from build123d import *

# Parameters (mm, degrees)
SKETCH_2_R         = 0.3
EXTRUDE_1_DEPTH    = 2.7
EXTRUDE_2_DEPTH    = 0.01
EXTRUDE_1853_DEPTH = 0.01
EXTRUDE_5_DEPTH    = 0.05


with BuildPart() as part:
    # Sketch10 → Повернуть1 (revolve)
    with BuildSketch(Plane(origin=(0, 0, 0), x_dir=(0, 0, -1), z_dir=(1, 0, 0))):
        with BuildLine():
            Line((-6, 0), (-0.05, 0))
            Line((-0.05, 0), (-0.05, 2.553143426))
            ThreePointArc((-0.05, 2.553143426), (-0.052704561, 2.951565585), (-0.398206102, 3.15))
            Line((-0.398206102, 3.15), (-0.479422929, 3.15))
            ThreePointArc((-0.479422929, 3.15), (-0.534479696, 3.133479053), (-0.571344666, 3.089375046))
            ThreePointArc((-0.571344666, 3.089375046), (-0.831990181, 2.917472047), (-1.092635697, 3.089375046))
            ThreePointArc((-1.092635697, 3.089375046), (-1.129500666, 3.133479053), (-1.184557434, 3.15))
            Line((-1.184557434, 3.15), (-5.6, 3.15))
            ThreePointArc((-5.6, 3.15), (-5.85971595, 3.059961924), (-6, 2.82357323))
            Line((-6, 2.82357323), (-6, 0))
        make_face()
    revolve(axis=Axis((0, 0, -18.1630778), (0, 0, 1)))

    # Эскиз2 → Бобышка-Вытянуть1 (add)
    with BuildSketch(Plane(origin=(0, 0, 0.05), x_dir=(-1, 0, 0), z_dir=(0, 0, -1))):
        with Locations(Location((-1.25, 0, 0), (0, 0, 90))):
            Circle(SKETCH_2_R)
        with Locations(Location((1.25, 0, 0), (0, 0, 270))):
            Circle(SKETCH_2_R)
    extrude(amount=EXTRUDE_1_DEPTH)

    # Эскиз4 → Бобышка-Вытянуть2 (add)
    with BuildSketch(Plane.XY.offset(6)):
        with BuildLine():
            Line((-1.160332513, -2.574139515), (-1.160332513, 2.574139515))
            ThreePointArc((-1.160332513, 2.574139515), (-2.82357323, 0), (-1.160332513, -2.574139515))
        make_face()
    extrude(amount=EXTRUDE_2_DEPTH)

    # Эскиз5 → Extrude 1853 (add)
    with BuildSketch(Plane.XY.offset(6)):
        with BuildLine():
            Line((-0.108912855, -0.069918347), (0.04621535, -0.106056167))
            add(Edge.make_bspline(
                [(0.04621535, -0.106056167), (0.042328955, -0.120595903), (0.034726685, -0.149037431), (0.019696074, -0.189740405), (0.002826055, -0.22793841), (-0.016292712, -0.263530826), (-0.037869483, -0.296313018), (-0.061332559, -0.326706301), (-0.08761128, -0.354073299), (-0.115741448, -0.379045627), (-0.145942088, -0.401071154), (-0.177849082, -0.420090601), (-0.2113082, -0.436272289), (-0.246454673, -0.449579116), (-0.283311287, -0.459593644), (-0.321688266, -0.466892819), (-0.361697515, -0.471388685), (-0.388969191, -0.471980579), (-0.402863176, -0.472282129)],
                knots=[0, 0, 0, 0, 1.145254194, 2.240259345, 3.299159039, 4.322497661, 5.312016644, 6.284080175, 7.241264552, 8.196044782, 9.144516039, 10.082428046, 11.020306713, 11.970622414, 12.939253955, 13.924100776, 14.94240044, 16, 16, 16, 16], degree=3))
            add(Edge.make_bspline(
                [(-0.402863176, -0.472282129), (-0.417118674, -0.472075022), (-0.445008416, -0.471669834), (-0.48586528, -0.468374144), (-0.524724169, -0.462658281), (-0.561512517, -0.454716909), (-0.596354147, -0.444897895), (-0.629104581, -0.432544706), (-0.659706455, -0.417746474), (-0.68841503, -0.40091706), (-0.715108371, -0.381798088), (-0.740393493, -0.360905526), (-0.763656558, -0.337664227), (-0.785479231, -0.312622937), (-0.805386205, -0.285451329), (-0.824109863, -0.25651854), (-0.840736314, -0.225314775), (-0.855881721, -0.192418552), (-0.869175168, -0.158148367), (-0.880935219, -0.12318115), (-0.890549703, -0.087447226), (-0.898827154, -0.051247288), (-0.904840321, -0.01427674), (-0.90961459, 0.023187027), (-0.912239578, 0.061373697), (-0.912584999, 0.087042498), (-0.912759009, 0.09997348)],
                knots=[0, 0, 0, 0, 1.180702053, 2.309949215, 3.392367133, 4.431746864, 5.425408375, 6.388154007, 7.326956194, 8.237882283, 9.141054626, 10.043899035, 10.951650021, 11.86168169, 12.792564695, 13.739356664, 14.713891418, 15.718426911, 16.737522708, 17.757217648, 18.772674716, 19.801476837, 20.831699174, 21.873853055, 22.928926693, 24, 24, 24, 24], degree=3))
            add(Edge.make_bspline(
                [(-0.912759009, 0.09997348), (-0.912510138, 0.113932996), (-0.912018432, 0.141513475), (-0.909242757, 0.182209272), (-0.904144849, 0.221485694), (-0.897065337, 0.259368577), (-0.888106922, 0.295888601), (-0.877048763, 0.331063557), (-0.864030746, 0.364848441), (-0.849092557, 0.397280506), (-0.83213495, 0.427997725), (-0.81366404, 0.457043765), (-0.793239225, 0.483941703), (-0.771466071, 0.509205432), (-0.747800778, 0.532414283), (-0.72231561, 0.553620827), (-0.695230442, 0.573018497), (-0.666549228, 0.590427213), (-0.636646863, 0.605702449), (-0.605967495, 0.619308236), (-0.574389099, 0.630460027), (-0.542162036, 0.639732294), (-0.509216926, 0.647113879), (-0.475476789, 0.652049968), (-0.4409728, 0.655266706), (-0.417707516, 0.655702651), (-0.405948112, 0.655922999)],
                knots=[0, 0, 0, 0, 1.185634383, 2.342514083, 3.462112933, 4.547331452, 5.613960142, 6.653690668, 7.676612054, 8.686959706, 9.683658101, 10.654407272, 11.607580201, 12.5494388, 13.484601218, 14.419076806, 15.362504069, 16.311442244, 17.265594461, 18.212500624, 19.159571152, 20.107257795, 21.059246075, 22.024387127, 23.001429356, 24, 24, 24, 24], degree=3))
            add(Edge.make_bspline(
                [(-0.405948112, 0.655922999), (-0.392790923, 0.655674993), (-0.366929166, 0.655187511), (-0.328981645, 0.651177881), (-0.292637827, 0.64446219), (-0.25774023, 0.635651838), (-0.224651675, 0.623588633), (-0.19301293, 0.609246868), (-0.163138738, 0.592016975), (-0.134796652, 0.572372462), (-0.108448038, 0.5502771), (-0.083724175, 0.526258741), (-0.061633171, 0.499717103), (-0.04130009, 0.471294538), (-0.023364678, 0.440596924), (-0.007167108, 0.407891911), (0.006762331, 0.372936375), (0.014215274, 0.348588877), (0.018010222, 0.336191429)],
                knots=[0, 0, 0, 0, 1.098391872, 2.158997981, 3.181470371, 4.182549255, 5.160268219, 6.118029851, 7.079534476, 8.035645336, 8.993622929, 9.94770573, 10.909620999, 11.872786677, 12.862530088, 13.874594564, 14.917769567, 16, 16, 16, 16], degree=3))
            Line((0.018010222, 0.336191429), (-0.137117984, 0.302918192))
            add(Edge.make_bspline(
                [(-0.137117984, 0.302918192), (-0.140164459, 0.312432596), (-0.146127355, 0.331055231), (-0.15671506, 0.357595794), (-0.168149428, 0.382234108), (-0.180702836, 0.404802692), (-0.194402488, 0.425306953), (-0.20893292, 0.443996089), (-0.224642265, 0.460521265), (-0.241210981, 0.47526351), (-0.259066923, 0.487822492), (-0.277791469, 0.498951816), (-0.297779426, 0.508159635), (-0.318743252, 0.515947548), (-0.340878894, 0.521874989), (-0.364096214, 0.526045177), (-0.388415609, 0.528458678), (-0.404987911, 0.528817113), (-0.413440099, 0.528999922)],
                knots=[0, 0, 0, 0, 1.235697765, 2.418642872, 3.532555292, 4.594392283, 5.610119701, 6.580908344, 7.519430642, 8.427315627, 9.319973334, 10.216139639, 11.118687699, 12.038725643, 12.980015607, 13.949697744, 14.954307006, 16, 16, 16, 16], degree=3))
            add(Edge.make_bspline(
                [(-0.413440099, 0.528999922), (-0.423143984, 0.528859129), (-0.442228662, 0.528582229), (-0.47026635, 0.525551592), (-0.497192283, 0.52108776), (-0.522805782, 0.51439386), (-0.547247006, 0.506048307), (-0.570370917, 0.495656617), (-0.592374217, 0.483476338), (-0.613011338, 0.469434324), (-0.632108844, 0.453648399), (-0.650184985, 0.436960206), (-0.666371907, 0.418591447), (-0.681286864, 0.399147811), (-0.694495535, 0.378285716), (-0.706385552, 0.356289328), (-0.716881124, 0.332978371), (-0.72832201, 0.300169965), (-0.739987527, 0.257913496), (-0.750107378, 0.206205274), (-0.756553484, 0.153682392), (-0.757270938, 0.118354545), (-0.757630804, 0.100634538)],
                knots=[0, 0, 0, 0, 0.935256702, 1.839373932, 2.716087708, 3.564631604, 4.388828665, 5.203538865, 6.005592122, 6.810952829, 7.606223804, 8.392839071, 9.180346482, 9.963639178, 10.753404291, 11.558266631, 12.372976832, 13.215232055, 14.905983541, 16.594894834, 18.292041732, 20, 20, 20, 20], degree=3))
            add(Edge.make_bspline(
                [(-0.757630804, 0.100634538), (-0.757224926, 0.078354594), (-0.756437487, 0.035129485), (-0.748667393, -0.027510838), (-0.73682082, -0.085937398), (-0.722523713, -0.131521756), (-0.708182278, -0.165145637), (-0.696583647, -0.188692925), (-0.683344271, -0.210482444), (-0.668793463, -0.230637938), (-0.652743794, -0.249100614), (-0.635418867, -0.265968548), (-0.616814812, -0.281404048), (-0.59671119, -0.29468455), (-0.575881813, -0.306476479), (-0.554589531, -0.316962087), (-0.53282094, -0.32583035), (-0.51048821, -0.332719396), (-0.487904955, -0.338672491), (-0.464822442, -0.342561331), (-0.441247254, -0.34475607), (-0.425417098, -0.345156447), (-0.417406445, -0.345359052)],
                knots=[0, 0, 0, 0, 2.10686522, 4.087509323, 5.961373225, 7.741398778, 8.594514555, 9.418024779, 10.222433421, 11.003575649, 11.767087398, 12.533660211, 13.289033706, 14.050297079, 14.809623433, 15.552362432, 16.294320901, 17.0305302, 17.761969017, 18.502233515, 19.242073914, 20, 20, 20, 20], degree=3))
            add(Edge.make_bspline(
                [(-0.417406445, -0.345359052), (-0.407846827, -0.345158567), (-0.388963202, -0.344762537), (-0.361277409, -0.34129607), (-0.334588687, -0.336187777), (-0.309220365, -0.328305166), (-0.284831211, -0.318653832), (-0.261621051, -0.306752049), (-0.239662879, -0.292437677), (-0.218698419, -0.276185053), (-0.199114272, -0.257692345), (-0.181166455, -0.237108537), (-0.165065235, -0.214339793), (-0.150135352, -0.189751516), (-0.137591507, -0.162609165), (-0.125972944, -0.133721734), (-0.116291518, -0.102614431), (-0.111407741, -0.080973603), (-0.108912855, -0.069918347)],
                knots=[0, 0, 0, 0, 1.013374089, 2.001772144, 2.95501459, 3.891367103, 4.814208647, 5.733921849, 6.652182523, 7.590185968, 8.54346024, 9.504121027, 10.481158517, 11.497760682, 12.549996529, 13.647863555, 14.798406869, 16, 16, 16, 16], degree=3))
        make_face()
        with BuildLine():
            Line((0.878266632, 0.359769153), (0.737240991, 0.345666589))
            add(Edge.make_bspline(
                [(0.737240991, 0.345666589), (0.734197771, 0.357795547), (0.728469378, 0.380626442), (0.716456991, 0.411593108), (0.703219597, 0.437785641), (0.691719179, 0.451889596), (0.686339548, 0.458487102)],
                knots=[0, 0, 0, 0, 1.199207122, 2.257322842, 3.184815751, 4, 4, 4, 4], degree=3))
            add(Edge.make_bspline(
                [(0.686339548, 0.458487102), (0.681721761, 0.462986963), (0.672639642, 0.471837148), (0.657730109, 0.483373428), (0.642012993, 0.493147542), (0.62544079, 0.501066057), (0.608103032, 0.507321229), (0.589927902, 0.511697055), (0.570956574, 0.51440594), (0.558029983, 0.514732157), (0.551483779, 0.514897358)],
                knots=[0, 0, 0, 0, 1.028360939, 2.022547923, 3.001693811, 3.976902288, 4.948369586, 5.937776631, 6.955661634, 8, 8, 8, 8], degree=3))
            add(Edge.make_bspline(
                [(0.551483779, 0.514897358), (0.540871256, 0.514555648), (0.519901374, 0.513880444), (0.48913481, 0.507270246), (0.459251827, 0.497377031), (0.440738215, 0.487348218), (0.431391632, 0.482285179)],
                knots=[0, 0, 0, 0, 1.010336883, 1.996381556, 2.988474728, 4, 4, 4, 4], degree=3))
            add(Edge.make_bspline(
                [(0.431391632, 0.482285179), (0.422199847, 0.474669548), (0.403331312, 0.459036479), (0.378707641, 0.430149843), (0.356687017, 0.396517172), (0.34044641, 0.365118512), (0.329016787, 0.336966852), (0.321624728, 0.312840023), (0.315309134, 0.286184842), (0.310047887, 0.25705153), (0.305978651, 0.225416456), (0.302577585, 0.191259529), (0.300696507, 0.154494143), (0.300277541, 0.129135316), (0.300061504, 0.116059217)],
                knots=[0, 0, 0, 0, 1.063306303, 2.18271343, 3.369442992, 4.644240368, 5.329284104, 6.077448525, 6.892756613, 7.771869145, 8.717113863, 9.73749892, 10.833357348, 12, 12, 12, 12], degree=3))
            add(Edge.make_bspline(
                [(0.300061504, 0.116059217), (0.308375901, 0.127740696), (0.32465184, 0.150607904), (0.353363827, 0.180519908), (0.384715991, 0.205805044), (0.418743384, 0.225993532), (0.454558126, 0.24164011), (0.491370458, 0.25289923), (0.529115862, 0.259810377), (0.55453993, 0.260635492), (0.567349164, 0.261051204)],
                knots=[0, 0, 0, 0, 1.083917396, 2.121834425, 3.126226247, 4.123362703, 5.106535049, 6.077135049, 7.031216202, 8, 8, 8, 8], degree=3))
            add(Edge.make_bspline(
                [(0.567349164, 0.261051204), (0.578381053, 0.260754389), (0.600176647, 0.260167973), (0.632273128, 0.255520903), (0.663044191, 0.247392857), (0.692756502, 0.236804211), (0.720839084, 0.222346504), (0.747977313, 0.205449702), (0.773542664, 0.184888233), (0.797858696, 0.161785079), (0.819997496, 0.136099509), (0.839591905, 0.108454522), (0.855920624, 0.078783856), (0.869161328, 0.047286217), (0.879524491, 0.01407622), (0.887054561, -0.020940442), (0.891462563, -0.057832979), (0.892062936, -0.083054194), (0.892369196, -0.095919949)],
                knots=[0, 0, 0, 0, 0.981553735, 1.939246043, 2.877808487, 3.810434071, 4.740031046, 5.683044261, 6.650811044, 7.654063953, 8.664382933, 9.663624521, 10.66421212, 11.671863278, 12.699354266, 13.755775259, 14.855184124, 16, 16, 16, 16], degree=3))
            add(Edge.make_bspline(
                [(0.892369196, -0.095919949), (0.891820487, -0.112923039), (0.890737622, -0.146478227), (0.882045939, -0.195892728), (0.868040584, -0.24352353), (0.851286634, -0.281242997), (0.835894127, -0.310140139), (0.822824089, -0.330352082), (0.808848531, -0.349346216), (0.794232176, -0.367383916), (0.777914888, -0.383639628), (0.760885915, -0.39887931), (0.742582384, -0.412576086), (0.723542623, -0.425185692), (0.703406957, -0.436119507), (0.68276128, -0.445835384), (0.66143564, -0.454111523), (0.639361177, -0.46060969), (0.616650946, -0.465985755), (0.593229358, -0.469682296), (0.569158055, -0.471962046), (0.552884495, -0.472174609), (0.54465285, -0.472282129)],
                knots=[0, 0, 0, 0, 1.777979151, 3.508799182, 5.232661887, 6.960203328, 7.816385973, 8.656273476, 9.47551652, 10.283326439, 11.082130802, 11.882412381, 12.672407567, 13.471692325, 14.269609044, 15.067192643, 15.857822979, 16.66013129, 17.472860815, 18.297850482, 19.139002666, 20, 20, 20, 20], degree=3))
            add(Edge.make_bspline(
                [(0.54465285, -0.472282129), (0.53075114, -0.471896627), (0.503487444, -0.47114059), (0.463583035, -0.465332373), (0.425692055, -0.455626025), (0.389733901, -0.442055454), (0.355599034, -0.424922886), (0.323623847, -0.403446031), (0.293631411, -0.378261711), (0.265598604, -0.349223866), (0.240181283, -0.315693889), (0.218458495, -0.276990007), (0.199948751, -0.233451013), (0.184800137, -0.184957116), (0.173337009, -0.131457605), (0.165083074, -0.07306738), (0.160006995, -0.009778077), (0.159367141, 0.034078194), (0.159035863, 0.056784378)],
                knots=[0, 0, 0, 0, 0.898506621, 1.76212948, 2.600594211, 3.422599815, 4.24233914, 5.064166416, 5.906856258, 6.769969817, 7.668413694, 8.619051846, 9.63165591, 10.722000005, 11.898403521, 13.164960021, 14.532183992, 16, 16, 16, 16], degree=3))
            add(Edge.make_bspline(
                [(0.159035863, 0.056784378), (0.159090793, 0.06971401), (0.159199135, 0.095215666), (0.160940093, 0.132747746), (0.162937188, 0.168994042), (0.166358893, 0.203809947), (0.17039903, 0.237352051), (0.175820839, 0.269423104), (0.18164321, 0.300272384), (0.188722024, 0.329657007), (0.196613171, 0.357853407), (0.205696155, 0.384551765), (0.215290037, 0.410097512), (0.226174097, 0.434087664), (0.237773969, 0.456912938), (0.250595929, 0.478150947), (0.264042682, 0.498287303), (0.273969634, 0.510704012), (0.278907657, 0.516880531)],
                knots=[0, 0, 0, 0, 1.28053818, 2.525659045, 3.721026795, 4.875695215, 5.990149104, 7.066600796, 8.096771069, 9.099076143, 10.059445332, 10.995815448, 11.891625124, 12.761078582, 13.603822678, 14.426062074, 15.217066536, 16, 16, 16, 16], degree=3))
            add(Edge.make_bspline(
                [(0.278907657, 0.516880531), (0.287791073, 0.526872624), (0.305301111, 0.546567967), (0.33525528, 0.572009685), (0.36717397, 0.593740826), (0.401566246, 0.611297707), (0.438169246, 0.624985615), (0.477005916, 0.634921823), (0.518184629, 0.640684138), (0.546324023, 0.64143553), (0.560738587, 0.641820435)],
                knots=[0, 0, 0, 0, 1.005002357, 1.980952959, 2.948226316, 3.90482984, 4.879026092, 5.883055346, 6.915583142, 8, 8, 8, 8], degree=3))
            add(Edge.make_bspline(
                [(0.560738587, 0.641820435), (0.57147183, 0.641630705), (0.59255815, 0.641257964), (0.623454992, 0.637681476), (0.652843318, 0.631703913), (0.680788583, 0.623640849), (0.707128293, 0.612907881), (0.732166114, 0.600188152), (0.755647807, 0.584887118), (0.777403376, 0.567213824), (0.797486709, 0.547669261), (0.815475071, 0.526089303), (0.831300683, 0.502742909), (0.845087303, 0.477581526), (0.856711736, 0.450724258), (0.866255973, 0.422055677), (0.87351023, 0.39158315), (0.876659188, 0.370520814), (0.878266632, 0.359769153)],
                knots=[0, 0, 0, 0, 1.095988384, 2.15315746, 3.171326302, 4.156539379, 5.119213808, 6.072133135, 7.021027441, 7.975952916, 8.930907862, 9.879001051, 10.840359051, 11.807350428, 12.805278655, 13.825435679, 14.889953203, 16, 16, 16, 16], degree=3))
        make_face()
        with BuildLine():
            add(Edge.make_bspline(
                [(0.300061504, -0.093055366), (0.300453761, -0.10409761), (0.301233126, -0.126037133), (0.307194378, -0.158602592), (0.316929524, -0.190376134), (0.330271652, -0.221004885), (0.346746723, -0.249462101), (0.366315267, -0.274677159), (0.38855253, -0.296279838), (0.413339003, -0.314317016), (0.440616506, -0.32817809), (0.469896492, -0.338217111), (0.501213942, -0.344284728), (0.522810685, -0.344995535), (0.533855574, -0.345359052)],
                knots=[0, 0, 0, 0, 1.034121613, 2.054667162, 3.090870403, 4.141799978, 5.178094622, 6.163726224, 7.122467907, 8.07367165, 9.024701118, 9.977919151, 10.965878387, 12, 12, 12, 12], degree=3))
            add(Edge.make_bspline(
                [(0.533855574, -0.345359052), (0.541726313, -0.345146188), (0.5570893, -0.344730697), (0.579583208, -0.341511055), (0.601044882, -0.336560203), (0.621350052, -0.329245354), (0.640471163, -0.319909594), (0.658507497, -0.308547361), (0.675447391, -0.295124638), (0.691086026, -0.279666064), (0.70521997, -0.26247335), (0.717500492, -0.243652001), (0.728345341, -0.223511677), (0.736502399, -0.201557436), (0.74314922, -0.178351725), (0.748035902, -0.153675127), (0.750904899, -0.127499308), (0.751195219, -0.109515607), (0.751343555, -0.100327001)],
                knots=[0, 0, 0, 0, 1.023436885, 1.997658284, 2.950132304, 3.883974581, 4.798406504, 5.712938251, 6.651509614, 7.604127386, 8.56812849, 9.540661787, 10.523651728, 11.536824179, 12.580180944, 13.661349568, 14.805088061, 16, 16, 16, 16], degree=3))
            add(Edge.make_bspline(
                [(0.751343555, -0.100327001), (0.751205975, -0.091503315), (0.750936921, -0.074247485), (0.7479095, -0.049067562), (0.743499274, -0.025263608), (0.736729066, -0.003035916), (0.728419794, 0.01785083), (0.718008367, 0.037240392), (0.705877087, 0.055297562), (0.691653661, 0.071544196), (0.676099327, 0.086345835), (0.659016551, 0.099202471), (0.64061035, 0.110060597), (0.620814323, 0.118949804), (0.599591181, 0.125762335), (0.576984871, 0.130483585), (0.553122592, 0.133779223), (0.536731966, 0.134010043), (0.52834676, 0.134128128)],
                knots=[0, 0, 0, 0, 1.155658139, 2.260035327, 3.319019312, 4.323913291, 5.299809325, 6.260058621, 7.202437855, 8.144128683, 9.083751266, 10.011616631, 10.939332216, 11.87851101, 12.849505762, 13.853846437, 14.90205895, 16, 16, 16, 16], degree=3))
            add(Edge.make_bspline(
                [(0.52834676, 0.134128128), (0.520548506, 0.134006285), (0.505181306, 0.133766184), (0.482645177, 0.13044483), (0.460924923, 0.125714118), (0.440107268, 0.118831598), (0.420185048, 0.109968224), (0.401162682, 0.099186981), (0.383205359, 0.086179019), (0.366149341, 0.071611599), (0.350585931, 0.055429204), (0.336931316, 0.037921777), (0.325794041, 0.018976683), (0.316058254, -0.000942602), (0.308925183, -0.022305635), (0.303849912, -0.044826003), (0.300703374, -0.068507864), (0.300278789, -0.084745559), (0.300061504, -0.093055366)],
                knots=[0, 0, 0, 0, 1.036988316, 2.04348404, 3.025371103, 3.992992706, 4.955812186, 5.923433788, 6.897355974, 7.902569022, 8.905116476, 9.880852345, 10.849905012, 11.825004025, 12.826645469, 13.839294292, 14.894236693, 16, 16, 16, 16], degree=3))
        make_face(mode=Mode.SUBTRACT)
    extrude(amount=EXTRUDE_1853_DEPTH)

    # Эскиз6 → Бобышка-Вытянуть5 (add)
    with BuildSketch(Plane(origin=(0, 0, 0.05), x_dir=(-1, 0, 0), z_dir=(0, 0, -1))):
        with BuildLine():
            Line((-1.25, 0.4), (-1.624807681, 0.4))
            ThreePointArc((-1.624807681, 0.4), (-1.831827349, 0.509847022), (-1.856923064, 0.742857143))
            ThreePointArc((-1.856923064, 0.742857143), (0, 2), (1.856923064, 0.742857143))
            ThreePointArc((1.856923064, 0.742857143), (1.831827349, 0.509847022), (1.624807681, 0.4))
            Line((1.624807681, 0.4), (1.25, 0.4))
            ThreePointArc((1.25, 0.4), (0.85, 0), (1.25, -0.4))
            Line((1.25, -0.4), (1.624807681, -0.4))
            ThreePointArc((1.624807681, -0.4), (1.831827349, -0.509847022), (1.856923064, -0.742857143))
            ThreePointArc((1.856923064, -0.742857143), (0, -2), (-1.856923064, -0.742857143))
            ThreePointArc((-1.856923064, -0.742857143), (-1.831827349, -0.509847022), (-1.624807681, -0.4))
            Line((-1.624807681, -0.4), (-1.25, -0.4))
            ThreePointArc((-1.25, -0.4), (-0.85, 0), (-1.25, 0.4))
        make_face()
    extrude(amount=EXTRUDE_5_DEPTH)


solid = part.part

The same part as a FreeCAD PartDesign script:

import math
import FreeCAD as App
import Part
import Sketcher
from FreeCAD import Vector
Q = App.Units.Quantity

doc = App.newDocument("Part")
body = doc.addObject("PartDesign::Body", "Body")

sketch1 = doc.addObject("Sketcher::SketchObject", "Sketch")
body.addObject(sketch1)
sketch1.AttachmentSupport = (doc.YZ_Plane, [""])
sketch1.MapMode = "FlatFace"
sketch1.addGeometry(Part.LineSegment(Vector(0, 6, 0), Vector(0, 0.05, 0)), False)
sketch1.addGeometry(Part.LineSegment(Vector(0, 0.05, 0), Vector(2.55, 0.05, 0)), False)
sketch1.addGeometry(Part.ArcOfCircle(Part.Circle(Vector(2.75, 0.4, 0), Vector(0, 0, 1), 0.4), math.radians(-119), math.radians(0)), False)
sketch1.addGeometry(Part.LineSegment(Vector(3.15, 0.4, 0), Vector(3.15, 0.48, 0)), False)
sketch1.addGeometry(Part.ArcOfCircle(Part.Circle(Vector(3.05, 0.48, 0), Vector(0, 0, 1), 0.1), math.radians(0), math.radians(67)), False)
sketch1.addGeometry(Part.ArcOfCircle(Part.Circle(Vector(3.2, 0.83, 0), Vector(0, 0, 1), 0.28), math.radians(113), math.radians(247)), False)
sketch1.addGeometry(Part.ArcOfCircle(Part.Circle(Vector(3.05, 1.18, 0), Vector(0, 0, 1), 0.1), math.radians(-67), math.radians(0)), False)
sketch1.addGeometry(Part.LineSegment(Vector(3.15, 1.18, 0), Vector(3.15, 5.6, 0)), False)
sketch1.addGeometry(Part.ArcOfCircle(Part.Circle(Vector(2.75, 5.61, 0), Vector(0, 0, 1), 0.4), math.radians(-1), math.radians(79)), False)
sketch1.addGeometry(Part.LineSegment(Vector(2.82, 6, 0), Vector(0, 6, 0)), False)
sketch1.addConstraint(Sketcher.Constraint("Coincident", 0, 2, 1, 1))
sketch1.addConstraint(Sketcher.Constraint("Coincident", 1, 2, 2, 1))
sketch1.addConstraint(Sketcher.Constraint("Tangent", 2, 2, 3, 1))
sketch1.addConstraint(Sketcher.Constraint("Tangent", 3, 2, 4, 1))
sketch1.addConstraint(Sketcher.Constraint("Tangent", 4, 2, 5, 2))
sketch1.addConstraint(Sketcher.Constraint("Tangent", 5, 1, 6, 1))
sketch1.addConstraint(Sketcher.Constraint("Tangent", 6, 2, 7, 1))
sketch1.addConstraint(Sketcher.Constraint("Coincident", 7, 2, 8, 1))
sketch1.addConstraint(Sketcher.Constraint("Coincident", 8, 2, 9, 1))
sketch1.addConstraint(Sketcher.Constraint("Coincident", 9, 2, 0, 1))
sketch1.addConstraint(Sketcher.Constraint("Vertical", 0))
sketch1.addConstraint(Sketcher.Constraint("Horizontal", 1))
sketch1.addConstraint(Sketcher.Constraint("Vertical", 3))
sketch1.addConstraint(Sketcher.Constraint("Vertical", 7))
sketch1.addConstraint(Sketcher.Constraint("Horizontal", 9))
sketch1.addConstraint(Sketcher.Constraint("Equal", 4, 6))
sketch1.addConstraint(Sketcher.Constraint("Equal", 2, 8))
sketch1.addConstraint(Sketcher.Constraint("PointOnObject", 0, 2, -2))
sketch1.addConstraint(Sketcher.Constraint("Vertical", 4, 3, 6, 3))
sketch1.addConstraint(Sketcher.Constraint("Radius", 2, Q("0.4 mm")))
sketch1.addConstraint(Sketcher.Constraint("Radius", 4, Q("0.1 mm")))
sketch1.addConstraint(Sketcher.Constraint("DistanceY", -1, 1, 8, 2, Q("6 mm")))
sketch1.addConstraint(Sketcher.Constraint("DistanceY", 0, 2, 0, 1, Q("5.95 mm")))
sketch1.addConstraint(Sketcher.Constraint("DistanceY", -1, 1, 7, 2, Q("5.6 mm")))
sketch1.addConstraint(Sketcher.Constraint("DistanceX", -1, 1, 2, 3, Q("2.75 mm")))
sketch1.addConstraint(Sketcher.Constraint("Radius", 5, Q("0.283552 mm")))
sketch1.addConstraint(Sketcher.Constraint("DistanceX", 8, 2, 5, 1, Q("0.265802 mm")))
sketch1.addConstraint(Sketcher.Constraint("DistanceX", 1, 1, 1, 2, Q("2.553143 mm")))
sketch1.addConstraint(Sketcher.Constraint("DistanceX", 9, 2, 9, 1, Q("2.823573 mm")))
sketch1.addConstraint(Sketcher.Constraint("DistanceY", 3, 1, 3, 2, Q("0.081217 mm")))
revolution = doc.addObject("PartDesign::Revolution", "Revolution")
body.addObject(revolution)
revolution.Profile = sketch1
revolution.ReferenceAxis = (sketch1, ["V_Axis"])
revolution.Angle = 360

sketch2 = doc.addObject("Sketcher::SketchObject", "Sketch001")
body.addObject(sketch2)
sketch2.AttachmentSupport = (doc.XY_Plane, [""])
sketch2.MapMode = "FlatFace"
sketch2.AttachmentOffset = App.Placement(Vector(0, 0, 0.05), App.Rotation())
sketch2.addGeometry(Part.Circle(Vector(1.25, 0, 0), Vector(0, 0, 1), 0.3), False)
sketch2.addGeometry(Part.Circle(Vector(-1.25, 0, 0), Vector(0, 0, 1), 0.3), False)
sketch2.addConstraint(Sketcher.Constraint("Equal", 0, 1))
sketch2.addConstraint(Sketcher.Constraint("Symmetric", 0, 3, 1, 3, -1, 1))
sketch2.addConstraint(Sketcher.Constraint("PointOnObject", 0, 3, -1))
sketch2.addConstraint(Sketcher.Constraint("Diameter", 0, Q("0.6 mm")))
sketch2.addConstraint(Sketcher.Constraint("DistanceX", 1, 3, 0, 3, Q("2.5 mm")))
pad1 = doc.addObject("PartDesign::Pad", "Pad")
body.addObject(pad1)
pad1.Profile = sketch2
pad1.Length = 2.7
pad1.Reversed = True

sketch3 = doc.addObject("Sketcher::SketchObject", "Sketch002")
body.addObject(sketch3)
sketch3.AttachmentSupport = (doc.XY_Plane, [""])
sketch3.MapMode = "FlatFace"
sketch3.AttachmentOffset = App.Placement(Vector(0, 0, 6), App.Rotation())
sketch3.addGeometry(Part.LineSegment(Vector(-1.2, -2.6, 0), Vector(-1.2, 2.6, 0)), False)
sketch3.addGeometry(Part.ArcOfCircle(Part.Circle(Vector(0, 0, 0), Vector(0, 0, 1), 2.8), math.radians(114), math.radians(246)), False)
sketch3.addConstraint(Sketcher.Constraint("Coincident", 0, 1, 1, 2))
sketch3.addConstraint(Sketcher.Constraint("Coincident", 1, 1, 0, 2))
sketch3.addConstraint(Sketcher.Constraint("Vertical", 0))
sketch3.addConstraint(Sketcher.Constraint("Coincident", 1, 3, -1, 1))
sketch3.addConstraint(Sketcher.Constraint("Radius", 1, Q("2.823573 mm")))
sketch3.addConstraint(Sketcher.Constraint("DistanceY", 0, 1, 0, 2, Q("5.148279 mm")))
pad2 = doc.addObject("PartDesign::Pad", "Pad001")
body.addObject(pad2)
pad2.Profile = sketch3
pad2.Length = 0.01

sketch4 = doc.addObject("Sketcher::SketchObject", "Sketch003")
body.addObject(sketch4)
sketch4.AttachmentSupport = (doc.XY_Plane, [""])
sketch4.MapMode = "FlatFace"
sketch4.AttachmentOffset = App.Placement(Vector(0, 0, 6), App.Rotation())
sketch4.addGeometry(Part.LineSegment(Vector(0.046215, -0.106056, 0), Vector(-0.108913, -0.069918, 0)), False)
sketch4.addGeometry(Part.BSplineCurve([Vector(-0.417406, -0.345359, 0), Vector(-0.407847, -0.345159, 0), Vector(-0.388963, -0.344763, 0), Vector(-0.361277, -0.341296, 0), Vector(-0.334589, -0.336188, 0), Vector(-0.30922, -0.328305, 0), Vector(-0.284831, -0.318654, 0), Vector(-0.261621, -0.306752, 0), Vector(-0.239663, -0.292438, 0), Vector(-0.218698, -0.276185, 0), Vector(-0.199114, -0.257692, 0), Vector(-0.181166, -0.237109, 0), Vector(-0.165065, -0.21434, 0), Vector(-0.150135, -0.189752, 0), Vector(-0.137592, -0.162609, 0), Vector(-0.125973, -0.133722, 0), Vector(-0.116292, -0.102614, 0), Vector(-0.111408, -0.080974, 0), Vector(-0.108913, -0.069918, 0)], [4, 1, 1, 1, 1, 1, 1, 1, 1, 1, 1, 1, 1, 1, 1, 1, 4], [0, 1.013374089, 2.001772144, 2.95501459, 3.891367103, 4.814208647, 5.733921849, 6.652182523, 7.590185968, 8.54346024, 9.504121027, 10.481158517, 11.497760682, 12.549996529, 13.647863555, 14.798406869, 16], False, 3, [1, 1, 1, 1, 1, 1, 1, 1, 1, 1, 1, 1, 1, 1, 1, 1, 1, 1, 1], False), False)
sketch4.addGeometry(Part.BSplineCurve([Vector(-0.757631, 0.100635, 0), Vector(-0.757225, 0.078355, 0), Vector(-0.756437, 0.035129, 0), Vector(-0.748667, -0.027511, 0), Vector(-0.736821, -0.085937, 0), Vector(-0.722524, -0.131522, 0), Vector(-0.708182, -0.165146, 0), Vector(-0.696584, -0.188693, 0), Vector(-0.683344, -0.210482, 0), Vector(-0.668793, -0.230638, 0), Vector(-0.652744, -0.249101, 0), Vector(-0.635419, -0.265969, 0), Vector(-0.616815, -0.281404, 0), Vector(-0.596711, -0.294685, 0), Vector(-0.575882, -0.306476, 0), Vector(-0.55459, -0.316962, 0), Vector(-0.532821, -0.32583, 0), Vector(-0.510488, -0.332719, 0), Vector(-0.487905, -0.338672, 0), Vector(-0.464822, -0.342561, 0), Vector(-0.441247, -0.344756, 0), Vector(-0.425417, -0.345156, 0), Vector(-0.417406, -0.345359, 0)], [4, 1, 1, 1, 1, 1, 1, 1, 1, 1, 1, 1, 1, 1, 1, 1, 1, 1, 1, 1, 4], [0, 2.10686522, 4.087509323, 5.961373225, 7.741398778, 8.594514555, 9.418024779, 10.222433421, 11.003575649, 11.767087398, 12.533660211, 13.289033706, 14.050297079, 14.809623433, 15.552362432, 16.294320901, 17.0305302, 17.761969017, 18.502233515, 19.242073914, 20], False, 3, [1, 1, 1, 1, 1, 1, 1, 1, 1, 1, 1, 1, 1, 1, 1, 1, 1, 1, 1, 1, 1, 1, 1], False), False)
sketch4.addGeometry(Part.BSplineCurve([Vector(-0.41344, 0.529, 0), Vector(-0.423144, 0.528859, 0), Vector(-0.442229, 0.528582, 0), Vector(-0.470266, 0.525552, 0), Vector(-0.497192, 0.521088, 0), Vector(-0.522806, 0.514394, 0), Vector(-0.547247, 0.506048, 0), Vector(-0.570371, 0.495657, 0), Vector(-0.592374, 0.483476, 0), Vector(-0.613011, 0.469434, 0), Vector(-0.632109, 0.453648, 0), Vector(-0.650185, 0.43696, 0), Vector(-0.666372, 0.418591, 0), Vector(-0.681287, 0.399148, 0), Vector(-0.694496, 0.378286, 0), Vector(-0.706386, 0.356289, 0), Vector(-0.716881, 0.332978, 0), Vector(-0.728322, 0.30017, 0), Vector(-0.739988, 0.257913, 0), Vector(-0.750107, 0.206205, 0), Vector(-0.756553, 0.153682, 0), Vector(-0.757271, 0.118355, 0), Vector(-0.757631, 0.100635, 0)], [4, 1, 1, 1, 1, 1, 1, 1, 1, 1, 1, 1, 1, 1, 1, 1, 1, 1, 1, 1, 4], [0, 0.935256702, 1.839373932, 2.716087708, 3.564631604, 4.388828665, 5.203538865, 6.005592122, 6.810952829, 7.606223804, 8.392839071, 9.180346482, 9.963639178, 10.753404291, 11.558266631, 12.372976832, 13.215232055, 14.905983541, 16.594894834, 18.292041732, 20], False, 3, [1, 1, 1, 1, 1, 1, 1, 1, 1, 1, 1, 1, 1, 1, 1, 1, 1, 1, 1, 1, 1, 1, 1], False), False)
sketch4.addGeometry(Part.BSplineCurve([Vector(-0.137118, 0.302918, 0), Vector(-0.140164, 0.312433, 0), Vector(-0.146127, 0.331055, 0), Vector(-0.156715, 0.357596, 0), Vector(-0.168149, 0.382234, 0), Vector(-0.180703, 0.404803, 0), Vector(-0.194402, 0.425307, 0), Vector(-0.208933, 0.443996, 0), Vector(-0.224642, 0.460521, 0), Vector(-0.241211, 0.475264, 0), Vector(-0.259067, 0.487822, 0), Vector(-0.277791, 0.498952, 0), Vector(-0.297779, 0.50816, 0), Vector(-0.318743, 0.515948, 0), Vector(-0.340879, 0.521875, 0), Vector(-0.364096, 0.526045, 0), Vector(-0.388416, 0.528459, 0), Vector(-0.404988, 0.528817, 0), Vector(-0.41344, 0.529, 0)], [4, 1, 1, 1, 1, 1, 1, 1, 1, 1, 1, 1, 1, 1, 1, 1, 4], [0, 1.235697765, 2.418642872, 3.532555292, 4.594392283, 5.610119701, 6.580908344, 7.519430642, 8.427315627, 9.319973334, 10.216139639, 11.118687699, 12.038725643, 12.980015607, 13.949697744, 14.954307006, 16], False, 3, [1, 1, 1, 1, 1, 1, 1, 1, 1, 1, 1, 1, 1, 1, 1, 1, 1, 1, 1], False), False)
sketch4.addGeometry(Part.LineSegment(Vector(-0.137118, 0.302918, 0), Vector(0.01801, 0.336191, 0)), False)
sketch4.addGeometry(Part.BSplineCurve([Vector(-0.405948, 0.655923, 0), Vector(-0.392791, 0.655675, 0), Vector(-0.366929, 0.655188, 0), Vector(-0.328982, 0.651178, 0), Vector(-0.292638, 0.644462, 0), Vector(-0.25774, 0.635652, 0), Vector(-0.224652, 0.623589, 0), Vector(-0.193013, 0.609247, 0), Vector(-0.163139, 0.592017, 0), Vector(-0.134797, 0.572372, 0), Vector(-0.108448, 0.550277, 0), Vector(-0.083724, 0.526259, 0), Vector(-0.061633, 0.499717, 0), Vector(-0.0413, 0.471295, 0), Vector(-0.023365, 0.440597, 0), Vector(-0.007167, 0.407892, 0), Vector(0.006762, 0.372936, 0), Vector(0.014215, 0.348589, 0), Vector(0.01801, 0.336191, 0)], [4, 1, 1, 1, 1, 1, 1, 1, 1, 1, 1, 1, 1, 1, 1, 1, 4], [0, 1.098391872, 2.158997981, 3.181470371, 4.182549255, 5.160268219, 6.118029851, 7.079534476, 8.035645336, 8.993622929, 9.94770573, 10.909620999, 11.872786677, 12.862530088, 13.874594564, 14.917769567, 16], False, 3, [1, 1, 1, 1, 1, 1, 1, 1, 1, 1, 1, 1, 1, 1, 1, 1, 1, 1, 1], False), False)
sketch4.addGeometry(Part.BSplineCurve([Vector(-0.912759, 0.099973, 0), Vector(-0.91251, 0.113933, 0), Vector(-0.912018, 0.141513, 0), Vector(-0.909243, 0.182209, 0), Vector(-0.904145, 0.221486, 0), Vector(-0.897065, 0.259369, 0), Vector(-0.888107, 0.295889, 0), Vector(-0.877049, 0.331064, 0), Vector(-0.864031, 0.364848, 0), Vector(-0.849093, 0.397281, 0), Vector(-0.832135, 0.427998, 0), Vector(-0.813664, 0.457044, 0), Vector(-0.793239, 0.483942, 0), Vector(-0.771466, 0.509205, 0), Vector(-0.747801, 0.532414, 0), Vector(-0.722316, 0.553621, 0), Vector(-0.69523, 0.573018, 0), Vector(-0.666549, 0.590427, 0), Vector(-0.636647, 0.605702, 0), Vector(-0.605967, 0.619308, 0), Vector(-0.574389, 0.63046, 0), Vector(-0.542162, 0.639732, 0), Vector(-0.509217, 0.647114, 0), Vector(-0.475477, 0.65205, 0), Vector(-0.440973, 0.655267, 0), Vector(-0.417708, 0.655703, 0), Vector(-0.405948, 0.655923, 0)], [4, 1, 1, 1, 1, 1, 1, 1, 1, 1, 1, 1, 1, 1, 1, 1, 1, 1, 1, 1, 1, 1, 1, 1, 4], [0, 1.185634383, 2.342514083, 3.462112933, 4.547331452, 5.613960142, 6.653690668, 7.676612054, 8.686959706, 9.683658101, 10.654407272, 11.607580201, 12.5494388, 13.484601218, 14.419076806, 15.362504069, 16.311442244, 17.265594461, 18.212500624, 19.159571152, 20.107257795, 21.059246075, 22.024387127, 23.001429356, 24], False, 3, [1, 1, 1, 1, 1, 1, 1, 1, 1, 1, 1, 1, 1, 1, 1, 1, 1, 1, 1, 1, 1, 1, 1, 1, 1, 1, 1], False), False)
sketch4.addGeometry(Part.BSplineCurve([Vector(-0.402863, -0.472282, 0), Vector(-0.417119, -0.472075, 0), Vector(-0.445008, -0.47167, 0), Vector(-0.485865, -0.468374, 0), Vector(-0.524724, -0.462658, 0), Vector(-0.561513, -0.454717, 0), Vector(-0.596354, -0.444898, 0), Vector(-0.629105, -0.432545, 0), Vector(-0.659706, -0.417746, 0), Vector(-0.688415, -0.400917, 0), Vector(-0.715108, -0.381798, 0), Vector(-0.740393, -0.360906, 0), Vector(-0.763657, -0.337664, 0), Vector(-0.785479, -0.312623, 0), Vector(-0.805386, -0.285451, 0), Vector(-0.82411, -0.256519, 0), Vector(-0.840736, -0.225315, 0), Vector(-0.855882, -0.192419, 0), Vector(-0.869175, -0.158148, 0), Vector(-0.880935, -0.123181, 0), Vector(-0.89055, -0.087447, 0), Vector(-0.898827, -0.051247, 0), Vector(-0.90484, -0.014277, 0), Vector(-0.909615, 0.023187, 0), Vector(-0.91224, 0.061374, 0), Vector(-0.912585, 0.087042, 0), Vector(-0.912759, 0.099973, 0)], [4, 1, 1, 1, 1, 1, 1, 1, 1, 1, 1, 1, 1, 1, 1, 1, 1, 1, 1, 1, 1, 1, 1, 1, 4], [0, 1.180702053, 2.309949215, 3.392367133, 4.431746864, 5.425408375, 6.388154007, 7.326956194, 8.237882283, 9.141054626, 10.043899035, 10.951650021, 11.86168169, 12.792564695, 13.739356664, 14.713891418, 15.718426911, 16.737522708, 17.757217648, 18.772674716, 19.801476837, 20.831699174, 21.873853055, 22.928926693, 24], False, 3, [1, 1, 1, 1, 1, 1, 1, 1, 1, 1, 1, 1, 1, 1, 1, 1, 1, 1, 1, 1, 1, 1, 1, 1, 1, 1, 1], False), False)
sketch4.addGeometry(Part.BSplineCurve([Vector(0.046215, -0.106056, 0), Vector(0.042329, -0.120596, 0), Vector(0.034727, -0.149037, 0), Vector(0.019696, -0.18974, 0), Vector(0.002826, -0.227938, 0), Vector(-0.016293, -0.263531, 0), Vector(-0.037869, -0.296313, 0), Vector(-0.061333, -0.326706, 0), Vector(-0.087611, -0.354073, 0), Vector(-0.115741, -0.379046, 0), Vector(-0.145942, -0.401071, 0), Vector(-0.177849, -0.420091, 0), Vector(-0.211308, -0.436272, 0), Vector(-0.246455, -0.449579, 0), Vector(-0.283311, -0.459594, 0), Vector(-0.321688, -0.466893, 0), Vector(-0.361698, -0.471389, 0), Vector(-0.388969, -0.471981, 0), Vector(-0.402863, -0.472282, 0)], [4, 1, 1, 1, 1, 1, 1, 1, 1, 1, 1, 1, 1, 1, 1, 1, 4], [0, 1.145254194, 2.240259345, 3.299159039, 4.322497661, 5.312016644, 6.284080175, 7.241264552, 8.196044782, 9.144516039, 10.082428046, 11.020306713, 11.970622414, 12.939253955, 13.924100776, 14.94240044, 16], False, 3, [1, 1, 1, 1, 1, 1, 1, 1, 1, 1, 1, 1, 1, 1, 1, 1, 1, 1, 1], False), False)
sketch4.addGeometry(Part.LineSegment(Vector(0.737241, 0.345667, 0), Vector(0.878267, 0.359769, 0)), False)
sketch4.addGeometry(Part.BSplineCurve([Vector(0.560739, 0.64182, 0), Vector(0.571472, 0.641631, 0), Vector(0.592558, 0.641258, 0), Vector(0.623455, 0.637681, 0), Vector(0.652843, 0.631704, 0), Vector(0.680789, 0.623641, 0), Vector(0.707128, 0.612908, 0), Vector(0.732166, 0.600188, 0), Vector(0.755648, 0.584887, 0), Vector(0.777403, 0.567214, 0), Vector(0.797487, 0.547669, 0), Vector(0.815475, 0.526089, 0), Vector(0.831301, 0.502743, 0), Vector(0.845087, 0.477582, 0), Vector(0.856712, 0.450724, 0), Vector(0.866256, 0.422056, 0), Vector(0.87351, 0.391583, 0), Vector(0.876659, 0.370521, 0), Vector(0.878267, 0.359769, 0)], [4, 1, 1, 1, 1, 1, 1, 1, 1, 1, 1, 1, 1, 1, 1, 1, 4], [0, 1.095988384, 2.15315746, 3.171326302, 4.156539379, 5.119213808, 6.072133135, 7.021027441, 7.975952916, 8.930907862, 9.879001051, 10.840359051, 11.807350428, 12.805278655, 13.825435679, 14.889953203, 16], False, 3, [1, 1, 1, 1, 1, 1, 1, 1, 1, 1, 1, 1, 1, 1, 1, 1, 1, 1, 1], False), False)
sketch4.addGeometry(Part.BSplineCurve([Vector(0.278908, 0.516881, 0), Vector(0.287791, 0.526873, 0), Vector(0.305301, 0.546568, 0), Vector(0.335255, 0.57201, 0), Vector(0.367174, 0.593741, 0), Vector(0.401566, 0.611298, 0), Vector(0.438169, 0.624986, 0), Vector(0.477006, 0.634922, 0), Vector(0.518185, 0.640684, 0), Vector(0.546324, 0.641436, 0), Vector(0.560739, 0.64182, 0)], [4, 1, 1, 1, 1, 1, 1, 1, 4], [0, 1.005002357, 1.980952959, 2.948226316, 3.90482984, 4.879026092, 5.883055346, 6.915583142, 8], False, 3, [1, 1, 1, 1, 1, 1, 1, 1, 1, 1, 1], False), False)
sketch4.addGeometry(Part.BSplineCurve([Vector(0.159036, 0.056784, 0), Vector(0.159091, 0.069714, 0), Vector(0.159199, 0.095216, 0), Vector(0.16094, 0.132748, 0), Vector(0.162937, 0.168994, 0), Vector(0.166359, 0.20381, 0), Vector(0.170399, 0.237352, 0), Vector(0.175821, 0.269423, 0), Vector(0.181643, 0.300272, 0), Vector(0.188722, 0.329657, 0), Vector(0.196613, 0.357853, 0), Vector(0.205696, 0.384552, 0), Vector(0.21529, 0.410098, 0), Vector(0.226174, 0.434088, 0), Vector(0.237774, 0.456913, 0), Vector(0.250596, 0.478151, 0), Vector(0.264043, 0.498287, 0), Vector(0.27397, 0.510704, 0), Vector(0.278908, 0.516881, 0)], [4, 1, 1, 1, 1, 1, 1, 1, 1, 1, 1, 1, 1, 1, 1, 1, 4], [0, 1.28053818, 2.525659045, 3.721026795, 4.875695215, 5.990149104, 7.066600796, 8.096771069, 9.099076143, 10.059445332, 10.995815448, 11.891625124, 12.761078582, 13.603822678, 14.426062074, 15.217066536, 16], False, 3, [1, 1, 1, 1, 1, 1, 1, 1, 1, 1, 1, 1, 1, 1, 1, 1, 1, 1, 1], False), False)
sketch4.addGeometry(Part.BSplineCurve([Vector(0.544653, -0.472282, 0), Vector(0.530751, -0.471897, 0), Vector(0.503487, -0.471141, 0), Vector(0.463583, -0.465332, 0), Vector(0.425692, -0.455626, 0), Vector(0.389734, -0.442055, 0), Vector(0.355599, -0.424923, 0), Vector(0.323624, -0.403446, 0), Vector(0.293631, -0.378262, 0), Vector(0.265599, -0.349224, 0), Vector(0.240181, -0.315694, 0), Vector(0.218458, -0.27699, 0), Vector(0.199949, -0.233451, 0), Vector(0.1848, -0.184957, 0), Vector(0.173337, -0.131458, 0), Vector(0.165083, -0.073067, 0), Vector(0.160007, -0.009778, 0), Vector(0.159367, 0.034078, 0), Vector(0.159036, 0.056784, 0)], [4, 1, 1, 1, 1, 1, 1, 1, 1, 1, 1, 1, 1, 1, 1, 1, 4], [0, 0.898506621, 1.76212948, 2.600594211, 3.422599815, 4.24233914, 5.064166416, 5.906856258, 6.769969817, 7.668413694, 8.619051846, 9.63165591, 10.722000005, 11.898403521, 13.164960021, 14.532183992, 16], False, 3, [1, 1, 1, 1, 1, 1, 1, 1, 1, 1, 1, 1, 1, 1, 1, 1, 1, 1, 1], False), False)
sketch4.addGeometry(Part.BSplineCurve([Vector(0.892369, -0.09592, 0), Vector(0.89182, -0.112923, 0), Vector(0.890738, -0.146478, 0), Vector(0.882046, -0.195893, 0), Vector(0.868041, -0.243524, 0), Vector(0.851287, -0.281243, 0), Vector(0.835894, -0.31014, 0), Vector(0.822824, -0.330352, 0), Vector(0.808849, -0.349346, 0), Vector(0.794232, -0.367384, 0), Vector(0.777915, -0.38364, 0), Vector(0.760886, -0.398879, 0), Vector(0.742582, -0.412576, 0), Vector(0.723543, -0.425186, 0), Vector(0.703407, -0.43612, 0), Vector(0.682761, -0.445835, 0), Vector(0.661436, -0.454112, 0), Vector(0.639361, -0.46061, 0), Vector(0.616651, -0.465986, 0), Vector(0.593229, -0.469682, 0), Vector(0.569158, -0.471962, 0), Vector(0.552884, -0.472175, 0), Vector(0.544653, -0.472282, 0)], [4, 1, 1, 1, 1, 1, 1, 1, 1, 1, 1, 1, 1, 1, 1, 1, 1, 1, 1, 1, 4], [0, 1.777979151, 3.508799182, 5.232661887, 6.960203328, 7.816385973, 8.656273476, 9.47551652, 10.283326439, 11.082130802, 11.882412381, 12.672407567, 13.471692325, 14.269609044, 15.067192643, 15.857822979, 16.66013129, 17.472860815, 18.297850482, 19.139002666, 20], False, 3, [1, 1, 1, 1, 1, 1, 1, 1, 1, 1, 1, 1, 1, 1, 1, 1, 1, 1, 1, 1, 1, 1, 1], False), False)
sketch4.addGeometry(Part.BSplineCurve([Vector(0.567349, 0.261051, 0), Vector(0.578381, 0.260754, 0), Vector(0.600177, 0.260168, 0), Vector(0.632273, 0.255521, 0), Vector(0.663044, 0.247393, 0), Vector(0.692757, 0.236804, 0), Vector(0.720839, 0.222347, 0), Vector(0.747977, 0.20545, 0), Vector(0.773543, 0.184888, 0), Vector(0.797859, 0.161785, 0), Vector(0.819997, 0.1361, 0), Vector(0.839592, 0.108455, 0), Vector(0.855921, 0.078784, 0), Vector(0.869161, 0.047286, 0), Vector(0.879524, 0.014076, 0), Vector(0.887055, -0.02094, 0), Vector(0.891463, -0.057833, 0), Vector(0.892063, -0.083054, 0), Vector(0.892369, -0.09592, 0)], [4, 1, 1, 1, 1, 1, 1, 1, 1, 1, 1, 1, 1, 1, 1, 1, 4], [0, 0.981553735, 1.939246043, 2.877808487, 3.810434071, 4.740031046, 5.683044261, 6.650811044, 7.654063953, 8.664382933, 9.663624521, 10.66421212, 11.671863278, 12.699354266, 13.755775259, 14.855184124, 16], False, 3, [1, 1, 1, 1, 1, 1, 1, 1, 1, 1, 1, 1, 1, 1, 1, 1, 1, 1, 1], False), False)
sketch4.addGeometry(Part.BSplineCurve([Vector(0.300062, 0.116059, 0), Vector(0.308376, 0.127741, 0), Vector(0.324652, 0.150608, 0), Vector(0.353364, 0.18052, 0), Vector(0.384716, 0.205805, 0), Vector(0.418743, 0.225994, 0), Vector(0.454558, 0.24164, 0), Vector(0.49137, 0.252899, 0), Vector(0.529116, 0.25981, 0), Vector(0.55454, 0.260635, 0), Vector(0.567349, 0.261051, 0)], [4, 1, 1, 1, 1, 1, 1, 1, 4], [0, 1.083917396, 2.121834425, 3.126226247, 4.123362703, 5.106535049, 6.077135049, 7.031216202, 8], False, 3, [1, 1, 1, 1, 1, 1, 1, 1, 1, 1, 1], False), False)
sketch4.addGeometry(Part.BSplineCurve([Vector(0.431392, 0.482285, 0), Vector(0.4222, 0.47467, 0), Vector(0.403331, 0.459036, 0), Vector(0.378708, 0.43015, 0), Vector(0.356687, 0.396517, 0), Vector(0.340446, 0.365119, 0), Vector(0.329017, 0.336967, 0), Vector(0.321625, 0.31284, 0), Vector(0.315309, 0.286185, 0), Vector(0.310048, 0.257052, 0), Vector(0.305979, 0.225416, 0), Vector(0.302578, 0.19126, 0), Vector(0.300697, 0.154494, 0), Vector(0.300278, 0.129135, 0), Vector(0.300062, 0.116059, 0)], [4, 1, 1, 1, 1, 1, 1, 1, 1, 1, 1, 1, 4], [0, 1.063306303, 2.18271343, 3.369442992, 4.644240368, 5.329284104, 6.077448525, 6.892756613, 7.771869145, 8.717113863, 9.73749892, 10.833357348, 12], False, 3, [1, 1, 1, 1, 1, 1, 1, 1, 1, 1, 1, 1, 1, 1, 1], False), False)
sketch4.addGeometry(Part.BSplineCurve([Vector(0.551484, 0.514897, 0), Vector(0.540871, 0.514556, 0), Vector(0.519901, 0.51388, 0), Vector(0.489135, 0.50727, 0), Vector(0.459252, 0.497377, 0), Vector(0.440738, 0.487348, 0), Vector(0.431392, 0.482285, 0)], [4, 1, 1, 1, 4], [0, 1.010336883, 1.996381556, 2.988474728, 4], False, 3, [1, 1, 1, 1, 1, 1, 1], False), False)
sketch4.addGeometry(Part.BSplineCurve([Vector(0.68634, 0.458487, 0), Vector(0.681722, 0.462987, 0), Vector(0.67264, 0.471837, 0), Vector(0.65773, 0.483373, 0), Vector(0.642013, 0.493148, 0), Vector(0.625441, 0.501066, 0), Vector(0.608103, 0.507321, 0), Vector(0.589928, 0.511697, 0), Vector(0.570957, 0.514406, 0), Vector(0.55803, 0.514732, 0), Vector(0.551484, 0.514897, 0)], [4, 1, 1, 1, 1, 1, 1, 1, 4], [0, 1.028360939, 2.022547923, 3.001693811, 3.976902288, 4.948369586, 5.937776631, 6.955661634, 8], False, 3, [1, 1, 1, 1, 1, 1, 1, 1, 1, 1, 1], False), False)
sketch4.addGeometry(Part.BSplineCurve([Vector(0.737241, 0.345667, 0), Vector(0.734198, 0.357796, 0), Vector(0.728469, 0.380626, 0), Vector(0.716457, 0.411593, 0), Vector(0.70322, 0.437786, 0), Vector(0.691719, 0.45189, 0), Vector(0.68634, 0.458487, 0)], [4, 1, 1, 1, 4], [0, 1.199207122, 2.257322842, 3.184815751, 4], False, 3, [1, 1, 1, 1, 1, 1, 1], False), False)
sketch4.addGeometry(Part.BSplineCurve([Vector(0.528347, 0.134128, 0), Vector(0.520549, 0.134006, 0), Vector(0.505181, 0.133766, 0), Vector(0.482645, 0.130445, 0), Vector(0.460925, 0.125714, 0), Vector(0.440107, 0.118832, 0), Vector(0.420185, 0.109968, 0), Vector(0.401163, 0.099187, 0), Vector(0.383205, 0.086179, 0), Vector(0.366149, 0.071612, 0), Vector(0.350586, 0.055429, 0), Vector(0.336931, 0.037922, 0), Vector(0.325794, 0.018977, 0), Vector(0.316058, -0.000943, 0), Vector(0.308925, -0.022306, 0), Vector(0.30385, -0.044826, 0), Vector(0.300703, -0.068508, 0), Vector(0.300279, -0.084746, 0), Vector(0.300062, -0.093055, 0)], [4, 1, 1, 1, 1, 1, 1, 1, 1, 1, 1, 1, 1, 1, 1, 1, 4], [0, 1.036988316, 2.04348404, 3.025371103, 3.992992706, 4.955812186, 5.923433788, 6.897355974, 7.902569022, 8.905116476, 9.880852345, 10.849905012, 11.825004025, 12.826645469, 13.839294292, 14.894236693, 16], False, 3, [1, 1, 1, 1, 1, 1, 1, 1, 1, 1, 1, 1, 1, 1, 1, 1, 1, 1, 1], False), False)
sketch4.addGeometry(Part.BSplineCurve([Vector(0.751344, -0.100327, 0), Vector(0.751206, -0.091503, 0), Vector(0.750937, -0.074247, 0), Vector(0.74791, -0.049068, 0), Vector(0.743499, -0.025264, 0), Vector(0.736729, -0.003036, 0), Vector(0.72842, 0.017851, 0), Vector(0.718008, 0.03724, 0), Vector(0.705877, 0.055298, 0), Vector(0.691654, 0.071544, 0), Vector(0.676099, 0.086346, 0), Vector(0.659017, 0.099202, 0), Vector(0.64061, 0.110061, 0), Vector(0.620814, 0.11895, 0), Vector(0.599591, 0.125762, 0), Vector(0.576985, 0.130484, 0), Vector(0.553123, 0.133779, 0), Vector(0.536732, 0.13401, 0), Vector(0.528347, 0.134128, 0)], [4, 1, 1, 1, 1, 1, 1, 1, 1, 1, 1, 1, 1, 1, 1, 1, 4], [0, 1.155658139, 2.260035327, 3.319019312, 4.323913291, 5.299809325, 6.260058621, 7.202437855, 8.144128683, 9.083751266, 10.011616631, 10.939332216, 11.87851101, 12.849505762, 13.853846437, 14.90205895, 16], False, 3, [1, 1, 1, 1, 1, 1, 1, 1, 1, 1, 1, 1, 1, 1, 1, 1, 1, 1, 1], False), False)
sketch4.addGeometry(Part.BSplineCurve([Vector(0.533856, -0.345359, 0), Vector(0.541726, -0.345146, 0), Vector(0.557089, -0.344731, 0), Vector(0.579583, -0.341511, 0), Vector(0.601045, -0.33656, 0), Vector(0.62135, -0.329245, 0), Vector(0.640471, -0.31991, 0), Vector(0.658507, -0.308547, 0), Vector(0.675447, -0.295125, 0), Vector(0.691086, -0.279666, 0), Vector(0.70522, -0.262473, 0), Vector(0.7175, -0.243652, 0), Vector(0.728345, -0.223512, 0), Vector(0.736502, -0.201557, 0), Vector(0.743149, -0.178352, 0), Vector(0.748036, -0.153675, 0), Vector(0.750905, -0.127499, 0), Vector(0.751195, -0.109516, 0), Vector(0.751344, -0.100327, 0)], [4, 1, 1, 1, 1, 1, 1, 1, 1, 1, 1, 1, 1, 1, 1, 1, 4], [0, 1.023436885, 1.997658284, 2.950132304, 3.883974581, 4.798406504, 5.712938251, 6.651509614, 7.604127386, 8.56812849, 9.540661787, 10.523651728, 11.536824179, 12.580180944, 13.661349568, 14.805088061, 16], False, 3, [1, 1, 1, 1, 1, 1, 1, 1, 1, 1, 1, 1, 1, 1, 1, 1, 1, 1, 1], False), False)
sketch4.addGeometry(Part.BSplineCurve([Vector(0.300062, -0.093055, 0), Vector(0.300454, -0.104098, 0), Vector(0.301233, -0.126037, 0), Vector(0.307194, -0.158603, 0), Vector(0.31693, -0.190376, 0), Vector(0.330272, -0.221005, 0), Vector(0.346747, -0.249462, 0), Vector(0.366315, -0.274677, 0), Vector(0.388553, -0.29628, 0), Vector(0.413339, -0.314317, 0), Vector(0.440617, -0.328178, 0), Vector(0.469896, -0.338217, 0), Vector(0.501214, -0.344285, 0), Vector(0.522811, -0.344996, 0), Vector(0.533856, -0.345359, 0)], [4, 1, 1, 1, 1, 1, 1, 1, 1, 1, 1, 1, 4], [0, 1.034121613, 2.054667162, 3.090870403, 4.141799978, 5.178094622, 6.163726224, 7.122467907, 8.07367165, 9.024701118, 9.977919151, 10.965878387, 12], False, 3, [1, 1, 1, 1, 1, 1, 1, 1, 1, 1, 1, 1, 1, 1, 1], False), False)
sketch4.addConstraint(Sketcher.Constraint("Block", 1))
sketch4.addConstraint(Sketcher.Constraint("Block", 2))
sketch4.addConstraint(Sketcher.Constraint("Block", 3))
sketch4.addConstraint(Sketcher.Constraint("Block", 4))
sketch4.addConstraint(Sketcher.Constraint("Block", 6))
sketch4.addConstraint(Sketcher.Constraint("Block", 7))
sketch4.addConstraint(Sketcher.Constraint("Block", 8))
sketch4.addConstraint(Sketcher.Constraint("Block", 9))
sketch4.addConstraint(Sketcher.Constraint("Block", 11))
sketch4.addConstraint(Sketcher.Constraint("Block", 12))
sketch4.addConstraint(Sketcher.Constraint("Block", 13))
sketch4.addConstraint(Sketcher.Constraint("Block", 14))
sketch4.addConstraint(Sketcher.Constraint("Block", 15))
sketch4.addConstraint(Sketcher.Constraint("Block", 16))
sketch4.addConstraint(Sketcher.Constraint("Block", 17))
sketch4.addConstraint(Sketcher.Constraint("Block", 18))
sketch4.addConstraint(Sketcher.Constraint("Block", 19))
sketch4.addConstraint(Sketcher.Constraint("Block", 20))
sketch4.addConstraint(Sketcher.Constraint("Block", 21))
sketch4.addConstraint(Sketcher.Constraint("Block", 22))
sketch4.addConstraint(Sketcher.Constraint("Block", 23))
sketch4.addConstraint(Sketcher.Constraint("Block", 24))
sketch4.addConstraint(Sketcher.Constraint("Block", 25))
sketch4.addConstraint(Sketcher.Constraint("Coincident", 0, 2, 1, 2))
sketch4.addConstraint(Sketcher.Constraint("Coincident", 4, 1, 5, 1))
sketch4.addConstraint(Sketcher.Constraint("Coincident", 5, 2, 6, 2))
sketch4.addConstraint(Sketcher.Constraint("Coincident", 9, 1, 0, 1))
sketch4.addConstraint(Sketcher.Constraint("Coincident", 10, 2, 11, 2))
sketch4.addConstraint(Sketcher.Constraint("Coincident", 21, 1, 10, 1))
pad3 = doc.addObject("PartDesign::Pad", "Pad002")
body.addObject(pad3)
pad3.Profile = sketch4
pad3.Length = 0.01

sketch5 = doc.addObject("Sketcher::SketchObject", "Sketch004")
body.addObject(sketch5)
sketch5.AttachmentSupport = (doc.XY_Plane, [""])
sketch5.MapMode = "FlatFace"
sketch5.AttachmentOffset = App.Placement(Vector(0, 0, 0.05), App.Rotation())
sketch5.addGeometry(Part.LineSegment(Vector(1.62, 0.4, 0), Vector(1.25, 0.4, 0)), False)
sketch5.addGeometry(Part.ArcOfCircle(Part.Circle(Vector(1.25, 0, 0), Vector(0, 0, 1), 0.4), math.radians(90), math.radians(270)), False)
sketch5.addGeometry(Part.LineSegment(Vector(1.25, -0.4, 0), Vector(1.62, -0.4, 0)), False)
sketch5.addGeometry(Part.ArcOfCircle(Part.Circle(Vector(1.62, -0.65, 0), Vector(0, 0, 1), 0.25), math.radians(-22), math.radians(90)), False)
sketch5.addGeometry(Part.ArcOfCircle(Part.Circle(Vector(0, 0, 0), Vector(0, 0, 1), 2), math.radians(-158), math.radians(-22)), False)
sketch5.addGeometry(Part.ArcOfCircle(Part.Circle(Vector(-1.62, -0.65, 0), Vector(0, 0, 1), 0.25), math.radians(90), math.radians(202)), False)
sketch5.addGeometry(Part.LineSegment(Vector(-1.62, -0.4, 0), Vector(-1.25, -0.4, 0)), False)
sketch5.addGeometry(Part.ArcOfCircle(Part.Circle(Vector(-1.25, 0, 0), Vector(0, 0, 1), 0.4), math.radians(-90), math.radians(90)), False)
sketch5.addGeometry(Part.LineSegment(Vector(-1.25, 0.4, 0), Vector(-1.62, 0.4, 0)), False)
sketch5.addGeometry(Part.ArcOfCircle(Part.Circle(Vector(-1.62, 0.65, 0), Vector(0, 0, 1), 0.25), math.radians(158), math.radians(270)), False)
sketch5.addGeometry(Part.ArcOfCircle(Part.Circle(Vector(0, 0, 0), Vector(0, 0, 1), 2), math.radians(22), math.radians(158)), False)
sketch5.addGeometry(Part.ArcOfCircle(Part.Circle(Vector(1.62, 0.65, 0), Vector(0, 0, 1), 0.25), math.radians(-90), math.radians(22)), False)
sketch5.addConstraint(Sketcher.Constraint("Tangent", 0, 2, 1, 1))
sketch5.addConstraint(Sketcher.Constraint("Tangent", 1, 2, 2, 1))
sketch5.addConstraint(Sketcher.Constraint("Tangent", 2, 2, 3, 2))
sketch5.addConstraint(Sketcher.Constraint("Tangent", 3, 1, 4, 2))
sketch5.addConstraint(Sketcher.Constraint("Tangent", 4, 1, 5, 2))
sketch5.addConstraint(Sketcher.Constraint("Tangent", 5, 1, 6, 1))
sketch5.addConstraint(Sketcher.Constraint("Tangent", 6, 2, 7, 1))
sketch5.addConstraint(Sketcher.Constraint("Tangent", 7, 2, 8, 1))
sketch5.addConstraint(Sketcher.Constraint("Tangent", 8, 2, 9, 2))
sketch5.addConstraint(Sketcher.Constraint("Tangent", 9, 1, 10, 2))
sketch5.addConstraint(Sketcher.Constraint("Tangent", 10, 1, 11, 2))
sketch5.addConstraint(Sketcher.Constraint("Tangent", 11, 1, 0, 1))
sketch5.addConstraint(Sketcher.Constraint("Horizontal", 0))
sketch5.addConstraint(Sketcher.Constraint("Horizontal", 2))
sketch5.addConstraint(Sketcher.Constraint("Horizontal", 6))
sketch5.addConstraint(Sketcher.Constraint("Horizontal", 8))
sketch5.addConstraint(Sketcher.Constraint("Coincident", 4, 3, -1, 1))
sketch5.addConstraint(Sketcher.Constraint("Coincident", 10, 3, -1, 1))
sketch5.addConstraint(Sketcher.Constraint("Equal", 3, 5))
sketch5.addConstraint(Sketcher.Constraint("Equal", 1, 7))
sketch5.addConstraint(Sketcher.Constraint("Equal", 5, 9))
sketch5.addConstraint(Sketcher.Constraint("Equal", 4, 10))
sketch5.addConstraint(Sketcher.Constraint("Equal", 9, 11))
sketch5.addConstraint(Sketcher.Constraint("Symmetric", 1, 3, 7, 3, -1, 1))
sketch5.addConstraint(Sketcher.Constraint("PointOnObject", 1, 3, -1))
sketch5.addConstraint(Sketcher.Constraint("Radius", 4, Q("2 mm")))
sketch5.addConstraint(Sketcher.Constraint("Radius", 1, Q("0.4 mm")))
sketch5.addConstraint(Sketcher.Constraint("Radius", 3, Q("0.25 mm")))
sketch5.addConstraint(Sketcher.Constraint("DistanceX", 7, 3, 1, 3, Q("2.5 mm")))
pad4 = doc.addObject("PartDesign::Pad", "Pad003")
body.addObject(pad4)
pad4.Profile = sketch5
pad4.Length = 0.05
pad4.Reversed = True

doc.recompute()
